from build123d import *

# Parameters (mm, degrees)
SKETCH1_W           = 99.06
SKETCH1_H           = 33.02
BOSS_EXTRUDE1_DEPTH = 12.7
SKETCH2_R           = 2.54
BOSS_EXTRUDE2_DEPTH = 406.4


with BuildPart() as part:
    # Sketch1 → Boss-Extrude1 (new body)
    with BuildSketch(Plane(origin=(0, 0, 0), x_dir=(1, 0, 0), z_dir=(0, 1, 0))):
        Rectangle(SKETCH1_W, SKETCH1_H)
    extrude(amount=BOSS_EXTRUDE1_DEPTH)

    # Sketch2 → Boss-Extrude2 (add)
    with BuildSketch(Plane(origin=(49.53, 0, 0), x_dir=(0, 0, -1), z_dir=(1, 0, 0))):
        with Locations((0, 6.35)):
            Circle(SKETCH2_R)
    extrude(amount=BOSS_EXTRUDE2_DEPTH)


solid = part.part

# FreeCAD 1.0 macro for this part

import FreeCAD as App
import Part
import Sketcher

V = App.Vector
Q = App.Units.Quantity

doc = App.newDocument("Part")
body = doc.addObject("PartDesign::Body", "Body")

# Sketch on XZ plane
sketch1 = doc.addObject("Sketcher::SketchObject", "Sketch")
body.addObject(sketch1)
sketch1.AttachmentSupport = (doc.XZ_Plane, [""])
sketch1.MapMode = "FlatFace"
sketch1.addGeometry([
    Part.LineSegment(V(-49.53, -16.51, 0), V(-49.53, 16.51, 0)),
    Part.LineSegment(V(-49.53, 16.51, 0), V(49.53, 16.51, 0)),
    Part.LineSegment(V(49.53, 16.51, 0), V(49.53, -16.51, 0)),
    Part.LineSegment(V(49.53, -16.51, 0), V(-49.53, -16.51, 0)),
], False)
sketch1.addConstraint([
    Sketcher.Constraint("Coincident", 0, 2, 1, 1),
    Sketcher.Constraint("Coincident", 1, 2, 2, 1),
    Sketcher.Constraint("Coincident", 2, 2, 3, 1),
    Sketcher.Constraint("Coincident", 3, 2, 0, 1),
    Sketcher.Constraint("Vertical", 0),
    Sketcher.Constraint("Horizontal", 1),
    Sketcher.Constraint("Vertical", 2),
    Sketcher.Constraint("Horizontal", 3),
    Sketcher.Constraint("Symmetric", 0, 2, 2, 2, -1, 1),
    Sketcher.Constraint("DistanceX", 1, 1, 1, 2, Q("3.9 in")),
    Sketcher.Constraint("DistanceY", 0, 1, 0, 2, Q("1.3 in")),
])
pad1 = doc.addObject("PartDesign::Pad", "Pad")
body.addObject(pad1)
pad1.Profile = sketch1
pad1.Length = Q("0.5 in")
pad1.Reversed = True

# Sketch on YZ plane
sketch2 = doc.addObject("Sketcher::SketchObject", "Sketch001")
body.addObject(sketch2)
sketch2.AttachmentSupport = (doc.YZ_Plane, [""])
sketch2.MapMode = "FlatFace"
sketch2.AttachmentOffset = App.Placement(V(0, 0, 1.95 * 25.4), App.Rotation())
sketch2.addGeometry(Part.Circle(V(6.35, 0, 0), V(0, 0, 1), 2.54), False)
sketch2.addConstraint([
    Sketcher.Constraint("PointOnObject", 0, 3, -1),
    Sketcher.Constraint("Diameter", 0, Q("0.2 in")),
    Sketcher.Constraint("DistanceX", -1, 1, 0, 3, Q("0.25 in")),
])
pad2 = doc.addObject("PartDesign::Pad", "Pad001")
body.addObject(pad2)
pad2.Profile = sketch2
pad2.Length = Q("16 in")

doc.recompute()
